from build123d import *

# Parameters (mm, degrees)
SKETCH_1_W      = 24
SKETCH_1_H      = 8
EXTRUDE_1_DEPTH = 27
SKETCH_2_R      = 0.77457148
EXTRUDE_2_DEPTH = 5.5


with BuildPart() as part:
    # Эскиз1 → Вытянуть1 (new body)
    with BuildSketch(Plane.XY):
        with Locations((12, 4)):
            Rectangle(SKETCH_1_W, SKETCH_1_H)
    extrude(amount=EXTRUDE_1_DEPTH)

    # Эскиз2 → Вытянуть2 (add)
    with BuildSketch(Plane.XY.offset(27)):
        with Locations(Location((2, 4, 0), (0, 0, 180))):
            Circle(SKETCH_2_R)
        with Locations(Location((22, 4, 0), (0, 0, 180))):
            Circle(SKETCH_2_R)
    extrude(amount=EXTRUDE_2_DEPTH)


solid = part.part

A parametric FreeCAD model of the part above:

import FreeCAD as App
import Part
import Sketcher


def add_polygon(sketch, points):
    """Adds a closed chain of lines whose ends are joined by coincident constraints."""
    first, n = sketch.GeometryCount, len(points)
    for a, b in zip(points, points[1:] + points[:1]):
        sketch.addGeometry(Part.LineSegment(App.Vector(*a, 0), App.Vector(*b, 0)), False)
    for i in range(n):
        sketch.addConstraint(Sketcher.Constraint("Coincident", first + i, 2, first + (i + 1) % n, 1))

doc = App.newDocument("Part")
params = doc.addObject("Spreadsheet::Sheet", "Params")
for row, (alias, value) in enumerate([
    ("sketch1_width", "24 mm"),
    ("sketch1_height", "8 mm"),
    ("pad1_length", "27 mm"),
    ("pad2_length", "5.5 mm"),
], start=1):
    params.set(f"A{row}", alias)
    params.set(f"B{row}", "=" + value)
    params.setAlias(f"B{row}", alias)

body = doc.addObject("PartDesign::Body", "Body")

# Sketch on XY plane
sketch1 = doc.addObject("Sketcher::SketchObject", "Sketch")
body.addObject(sketch1)
sketch1.AttachmentSupport = (doc.XY_Plane, [""])
sketch1.MapMode = "FlatFace"
add_polygon(sketch1, [(0, 8), (0, 0), (24, 0), (24, 8)])  # lines 0-3
sketch1.addConstraint(Sketcher.Constraint("Vertical", 0))
sketch1.addConstraint(Sketcher.Constraint("Horizontal", 1))
sketch1.addConstraint(Sketcher.Constraint("Vertical", 2))
sketch1.addConstraint(Sketcher.Constraint("Horizontal", 3))
sketch1.addConstraint(Sketcher.Constraint("Coincident", 0, 2, -1, 1))
sketch1.addConstraint(Sketcher.Constraint("DistanceX", 1, 1, 1, 2, 24.0))
sketch1.addConstraint(Sketcher.Constraint("DistanceY", 0, 2, 0, 1, 8.0))
sketch1.setExpression("Constraints[9]", "Params.sketch1_width")
sketch1.setExpression("Constraints[10]", "Params.sketch1_height")
pad1 = doc.addObject("PartDesign::Pad", "Pad")
body.addObject(pad1)
pad1.Profile = sketch1
pad1.setExpression("Length", "Params.pad1_length")

# Sketch on XY plane
sketch2 = doc.addObject("Sketcher::SketchObject", "Sketch001")
body.addObject(sketch2)
sketch2.AttachmentSupport = (doc.XY_Plane, [""])
sketch2.MapMode = "FlatFace"
sketch2.AttachmentOffset = App.Placement(App.Vector(0, 0, 27), App.Rotation())
sketch2.addGeometry(Part.Circle(App.Vector(2, 4, 0), App.Vector(0, 0, 1), 0.8), False)
sketch2.addGeometry(Part.Circle(App.Vector(22, 4, 0), App.Vector(0, 0, 1), 0.8), False)
sketch2.addConstraint(Sketcher.Constraint("Equal", 0, 1))
sketch2.addConstraint(Sketcher.Constraint("Horizontal", 0, 3, 1, 3))
sketch2.addConstraint(Sketcher.Constraint("DistanceX", -1, 1, 0, 3, 2.0))
sketch2.addConstraint(Sketcher.Constraint("DistanceY", -1, 1, 0, 3, 4.0))
sketch2.addConstraint(Sketcher.Constraint("DistanceX", -1, 1, 1, 3, 22.0))
sketch2.addConstraint(Sketcher.Constraint("Diameter", 0, 1.549143))
pad2 = doc.addObject("PartDesign::Pad", "Pad001")
body.addObject(pad2)
pad2.Profile = sketch2
pad2.setExpression("Length", "Params.pad2_length")

doc.recompute()
